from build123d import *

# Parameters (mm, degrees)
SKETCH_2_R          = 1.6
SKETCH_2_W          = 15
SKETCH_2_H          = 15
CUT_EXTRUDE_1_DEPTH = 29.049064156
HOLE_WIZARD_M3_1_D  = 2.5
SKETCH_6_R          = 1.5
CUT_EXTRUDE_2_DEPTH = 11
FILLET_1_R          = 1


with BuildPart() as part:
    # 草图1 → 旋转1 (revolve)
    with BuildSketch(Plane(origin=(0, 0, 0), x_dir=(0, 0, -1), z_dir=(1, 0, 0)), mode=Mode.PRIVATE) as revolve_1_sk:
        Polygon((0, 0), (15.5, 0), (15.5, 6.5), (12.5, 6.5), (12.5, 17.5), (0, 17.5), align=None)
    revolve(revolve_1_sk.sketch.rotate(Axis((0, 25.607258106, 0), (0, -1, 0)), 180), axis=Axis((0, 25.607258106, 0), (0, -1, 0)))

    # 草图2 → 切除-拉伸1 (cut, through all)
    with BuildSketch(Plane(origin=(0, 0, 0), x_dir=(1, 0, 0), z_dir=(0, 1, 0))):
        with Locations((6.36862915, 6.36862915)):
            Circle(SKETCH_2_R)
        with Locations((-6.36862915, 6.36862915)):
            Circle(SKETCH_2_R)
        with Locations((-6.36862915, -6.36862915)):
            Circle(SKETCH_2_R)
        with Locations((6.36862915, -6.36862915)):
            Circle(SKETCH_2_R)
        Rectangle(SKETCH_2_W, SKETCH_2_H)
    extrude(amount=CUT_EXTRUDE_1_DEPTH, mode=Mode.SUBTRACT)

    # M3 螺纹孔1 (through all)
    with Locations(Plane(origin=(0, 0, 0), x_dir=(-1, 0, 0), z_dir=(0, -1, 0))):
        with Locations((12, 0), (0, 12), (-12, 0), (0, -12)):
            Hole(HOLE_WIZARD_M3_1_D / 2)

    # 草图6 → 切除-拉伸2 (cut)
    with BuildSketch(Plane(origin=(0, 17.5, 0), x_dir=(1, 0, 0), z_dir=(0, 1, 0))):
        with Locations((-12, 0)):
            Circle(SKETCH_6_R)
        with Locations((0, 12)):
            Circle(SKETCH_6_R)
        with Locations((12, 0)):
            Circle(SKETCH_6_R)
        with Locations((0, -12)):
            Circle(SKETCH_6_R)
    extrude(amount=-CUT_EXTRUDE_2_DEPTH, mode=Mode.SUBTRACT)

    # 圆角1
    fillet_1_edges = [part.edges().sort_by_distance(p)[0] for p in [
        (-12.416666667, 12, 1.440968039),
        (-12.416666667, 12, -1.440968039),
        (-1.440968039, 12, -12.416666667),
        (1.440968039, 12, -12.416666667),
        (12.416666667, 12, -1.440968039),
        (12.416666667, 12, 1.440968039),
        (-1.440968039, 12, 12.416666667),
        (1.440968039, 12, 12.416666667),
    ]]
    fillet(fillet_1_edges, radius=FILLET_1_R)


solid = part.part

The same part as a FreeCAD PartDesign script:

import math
import FreeCAD as App
import Part
import Sketcher

V = App.Vector
Q = App.Units.Quantity


def edges_at(feature, points):
    """Names of the edges that pass closest to the given points."""
    edges = feature.Shape.Edges
    near = lambda p: min(range(len(edges)), key=lambda i: edges[i].distToShape(Part.Vertex(*p))[0])
    return sorted({f"Edge{near(p) + 1}" for p in points})


def add_polygon(sketch, points):
    """Adds a closed chain of lines whose ends are joined by coincident constraints."""
    first, n = sketch.GeometryCount, len(points)
    for a, b in zip(points, points[1:] + points[:1]):
        sketch.addGeometry(Part.LineSegment(App.Vector(*a, 0), App.Vector(*b, 0)), False)
    for i in range(n):
        sketch.addConstraint(Sketcher.Constraint("Coincident", first + i, 2, first + (i + 1) % n, 1))

doc = App.newDocument("Part")
body = doc.addObject("PartDesign::Body", "Body")

sketch1 = body.newObject("Sketcher::SketchObject", "Sketch")
sketch1.AttachmentSupport = (doc.getObject("YZ_Plane"), [""])
sketch1.MapMode = "FlatFace"
add_polygon(sketch1, [(0, 0), (0, -15.5), (6.5, -15.5), (6.5, -12.5), (17.5, -12.5), (17.5, 0)])
sketch1.addConstraint([
    Sketcher.Constraint("Vertical", 0),
    Sketcher.Constraint("Horizontal", 1),
    Sketcher.Constraint("Vertical", 2),
    Sketcher.Constraint("Horizontal", 3),
    Sketcher.Constraint("Vertical", 4),
    Sketcher.Constraint("Horizontal", 5),
    Sketcher.Constraint("Coincident", 5, 2, -1, 1),
    Sketcher.Constraint("DistanceX", 3, 1, 3, 2, Q("11 mm")),
    Sketcher.Constraint("DistanceY", 2, 1, 2, 2, Q("3 mm")),
    Sketcher.Constraint("DistanceX", 1, 1, 1, 2, Q("6.5 mm")),
    Sketcher.Constraint("DistanceY", 0, 2, 0, 1, Q("15.5 mm")),
])
revolution = body.newObject("PartDesign::Revolution", "Revolution")
revolution.Profile = sketch1
revolution.ReferenceAxis = (sketch1, ["H_Axis"])
revolution.Angle = 360

sketch2 = body.newObject("Sketcher::SketchObject", "Sketch001")
sketch2.AttachmentSupport = (doc.getObject("XZ_Plane"), [""])
sketch2.MapMode = "FlatFace"
sketch2.addGeometry([
    Part.ArcOfCircle(Part.Circle(V(6.368629, -6.368629, 0), V(0, 0, 1), 1.6), math.radians(-135), math.radians(45)),
    Part.LineSegment(V(5.237258, -7.5, 0), V(-5.237258, -7.5, 0)),
    Part.ArcOfCircle(Part.Circle(V(-6.368629, -6.368629, 0), V(0, 0, 1), 1.6), math.radians(135), math.radians(315)),
    Part.LineSegment(V(-7.5, -5.237258, 0), V(-7.5, 5.237258, 0)),
    Part.ArcOfCircle(Part.Circle(V(-6.368629, 6.368629, 0), V(0, 0, 1), 1.6), math.radians(45), math.radians(225)),
    Part.LineSegment(V(-5.237258, 7.5, 0), V(5.237258, 7.5, 0)),
    Part.ArcOfCircle(Part.Circle(V(6.368629, 6.368629, 0), V(0, 0, 1), 1.6), math.radians(-45), math.radians(135)),
    Part.LineSegment(V(7.5, 5.237258, 0), V(7.5, -5.237258, 0)),
], False)
sketch2.addConstraint([
    Sketcher.Constraint("Coincident", 0, 1, 1, 1),
    Sketcher.Constraint("Coincident", 1, 2, 2, 2),
    Sketcher.Constraint("Coincident", 2, 1, 3, 1),
    Sketcher.Constraint("Coincident", 3, 2, 4, 2),
    Sketcher.Constraint("Coincident", 4, 1, 5, 1),
    Sketcher.Constraint("Coincident", 5, 2, 6, 2),
    Sketcher.Constraint("Coincident", 6, 1, 7, 1),
    Sketcher.Constraint("Coincident", 7, 2, 0, 2),
    Sketcher.Constraint("Horizontal", 1),
    Sketcher.Constraint("Vertical", 3),
    Sketcher.Constraint("Horizontal", 5),
    Sketcher.Constraint("Vertical", 7),
    Sketcher.Constraint("Equal", 0, 2),
    Sketcher.Constraint("Equal", 2, 4),
    Sketcher.Constraint("Equal", 4, 6),
    Sketcher.Constraint("Symmetric", 0, 3, 4, 3, -1, 1),
    Sketcher.Constraint("Symmetric", 2, 3, 6, 3, -1, 1),
    Sketcher.Constraint("Symmetric", 0, 3, 2, 3, -2),
    Sketcher.Constraint("Horizontal", 3, 2, 6, 1),
    Sketcher.Constraint("Vertical", 1, 2, 4, 1),
    Sketcher.Constraint("Equal", 5, 3),
    Sketcher.Constraint("Radius", 0, Q("1.6 mm")),
    Sketcher.Constraint("DistanceY", 0, 1, -1, 1, Q("7.5 mm")),
    Sketcher.Constraint("DistanceX", 2, 1, -1, 1, Q("7.5 mm")),
    Sketcher.Constraint("DistanceX", -1, 1, 0, 3, Q("6.368629 mm")),
])
pocket1 = body.newObject("PartDesign::Pocket", "Pocket")
pocket1.Profile = sketch2
pocket1.Type = "ThroughAll"

sketch3 = body.newObject("Sketcher::SketchObject", "Sketch002")
sketch3.AttachmentSupport = (doc.getObject("XZ_Plane"), [""])
sketch3.MapMode = "FlatFace"
sketch3.addGeometry([
    Part.Circle(V(-12, 0, 0), V(0, 0, 1), 1.25),
    Part.Circle(V(0, -12, 0), V(0, 0, 1), 1.25),
    Part.Circle(V(12, 0, 0), V(0, 0, 1), 1.25),
    Part.Circle(V(0, 12, 0), V(0, 0, 1), 1.25),
], False)
sketch3.addConstraint([
    Sketcher.Constraint("Equal", 0, 1),
    Sketcher.Constraint("Equal", 1, 2),
    Sketcher.Constraint("Equal", 2, 3),
    Sketcher.Constraint("Symmetric", 0, 3, 2, 3, -1, 1),
    Sketcher.Constraint("Symmetric", 1, 3, 3, 3, -1, 1),
    Sketcher.Constraint("PointOnObject", 0, 3, -1),
    Sketcher.Constraint("PointOnObject", 1, 3, -2),
    Sketcher.Constraint("Diameter", 0, Q("2.5 mm")),
    Sketcher.Constraint("DistanceX", 0, 3, -1, 1, Q("12 mm")),
    Sketcher.Constraint("DistanceY", 1, 3, -1, 1, Q("12 mm")),
])
doc.recompute()
hole = body.newObject("PartDesign::Hole", "Hole")
hole.Profile = sketch3
hole.ThreadType = "None"
hole.Diameter = 2.5
hole.DepthType = "ThroughAll"

sketch4 = body.newObject("Sketcher::SketchObject", "Sketch003")
sketch4.AttachmentSupport = (doc.getObject("XZ_Plane"), [""])
sketch4.MapMode = "FlatFace"
sketch4.AttachmentOffset = App.Placement(V(0, 0, -17.5), App.Rotation())
sketch4.addGeometry([
    Part.Circle(V(-12, 0, 0), V(0, 0, 1), 1.5),
    Part.Circle(V(0, -12, 0), V(0, 0, 1), 1.5),
    Part.Circle(V(12, 0, 0), V(0, 0, 1), 1.5),
    Part.Circle(V(0, 12, 0), V(0, 0, 1), 1.5),
], False)
sketch4.addConstraint([
    Sketcher.Constraint("Equal", 0, 1),
    Sketcher.Constraint("Equal", 1, 2),
    Sketcher.Constraint("Equal", 2, 3),
    Sketcher.Constraint("Symmetric", 0, 3, 2, 3, -1, 1),
    Sketcher.Constraint("Symmetric", 1, 3, 3, 3, -1, 1),
    Sketcher.Constraint("PointOnObject", 0, 3, -1),
    Sketcher.Constraint("PointOnObject", 1, 3, -2),
    Sketcher.Constraint("Diameter", 0, Q("3 mm")),
    Sketcher.Constraint("DistanceX", 0, 3, -1, 1, Q("12 mm")),
    Sketcher.Constraint("DistanceY", 1, 3, -1, 1, Q("12 mm")),
])
pocket2 = body.newObject("PartDesign::Pocket", "Pocket001")
pocket2.Profile = sketch4
pocket2.Length = 11
pocket2.Reversed = True
doc.recompute()

fillet = body.newObject("PartDesign::Fillet", "Fillet")
fillet.Base = (pocket2, edges_at(pocket2, [
    (-12.417, 12, 1.441),
    (-12.417, 12, -1.441),
    (-1.441, 12, -12.417),
    (1.441, 12, -12.417),
    (12.417, 12, -1.441),
    (12.417, 12, 1.441),
    (-1.441, 12, 12.417),
    (1.441, 12, 12.417),
]))
fillet.Radius = 1

doc.recompute()
